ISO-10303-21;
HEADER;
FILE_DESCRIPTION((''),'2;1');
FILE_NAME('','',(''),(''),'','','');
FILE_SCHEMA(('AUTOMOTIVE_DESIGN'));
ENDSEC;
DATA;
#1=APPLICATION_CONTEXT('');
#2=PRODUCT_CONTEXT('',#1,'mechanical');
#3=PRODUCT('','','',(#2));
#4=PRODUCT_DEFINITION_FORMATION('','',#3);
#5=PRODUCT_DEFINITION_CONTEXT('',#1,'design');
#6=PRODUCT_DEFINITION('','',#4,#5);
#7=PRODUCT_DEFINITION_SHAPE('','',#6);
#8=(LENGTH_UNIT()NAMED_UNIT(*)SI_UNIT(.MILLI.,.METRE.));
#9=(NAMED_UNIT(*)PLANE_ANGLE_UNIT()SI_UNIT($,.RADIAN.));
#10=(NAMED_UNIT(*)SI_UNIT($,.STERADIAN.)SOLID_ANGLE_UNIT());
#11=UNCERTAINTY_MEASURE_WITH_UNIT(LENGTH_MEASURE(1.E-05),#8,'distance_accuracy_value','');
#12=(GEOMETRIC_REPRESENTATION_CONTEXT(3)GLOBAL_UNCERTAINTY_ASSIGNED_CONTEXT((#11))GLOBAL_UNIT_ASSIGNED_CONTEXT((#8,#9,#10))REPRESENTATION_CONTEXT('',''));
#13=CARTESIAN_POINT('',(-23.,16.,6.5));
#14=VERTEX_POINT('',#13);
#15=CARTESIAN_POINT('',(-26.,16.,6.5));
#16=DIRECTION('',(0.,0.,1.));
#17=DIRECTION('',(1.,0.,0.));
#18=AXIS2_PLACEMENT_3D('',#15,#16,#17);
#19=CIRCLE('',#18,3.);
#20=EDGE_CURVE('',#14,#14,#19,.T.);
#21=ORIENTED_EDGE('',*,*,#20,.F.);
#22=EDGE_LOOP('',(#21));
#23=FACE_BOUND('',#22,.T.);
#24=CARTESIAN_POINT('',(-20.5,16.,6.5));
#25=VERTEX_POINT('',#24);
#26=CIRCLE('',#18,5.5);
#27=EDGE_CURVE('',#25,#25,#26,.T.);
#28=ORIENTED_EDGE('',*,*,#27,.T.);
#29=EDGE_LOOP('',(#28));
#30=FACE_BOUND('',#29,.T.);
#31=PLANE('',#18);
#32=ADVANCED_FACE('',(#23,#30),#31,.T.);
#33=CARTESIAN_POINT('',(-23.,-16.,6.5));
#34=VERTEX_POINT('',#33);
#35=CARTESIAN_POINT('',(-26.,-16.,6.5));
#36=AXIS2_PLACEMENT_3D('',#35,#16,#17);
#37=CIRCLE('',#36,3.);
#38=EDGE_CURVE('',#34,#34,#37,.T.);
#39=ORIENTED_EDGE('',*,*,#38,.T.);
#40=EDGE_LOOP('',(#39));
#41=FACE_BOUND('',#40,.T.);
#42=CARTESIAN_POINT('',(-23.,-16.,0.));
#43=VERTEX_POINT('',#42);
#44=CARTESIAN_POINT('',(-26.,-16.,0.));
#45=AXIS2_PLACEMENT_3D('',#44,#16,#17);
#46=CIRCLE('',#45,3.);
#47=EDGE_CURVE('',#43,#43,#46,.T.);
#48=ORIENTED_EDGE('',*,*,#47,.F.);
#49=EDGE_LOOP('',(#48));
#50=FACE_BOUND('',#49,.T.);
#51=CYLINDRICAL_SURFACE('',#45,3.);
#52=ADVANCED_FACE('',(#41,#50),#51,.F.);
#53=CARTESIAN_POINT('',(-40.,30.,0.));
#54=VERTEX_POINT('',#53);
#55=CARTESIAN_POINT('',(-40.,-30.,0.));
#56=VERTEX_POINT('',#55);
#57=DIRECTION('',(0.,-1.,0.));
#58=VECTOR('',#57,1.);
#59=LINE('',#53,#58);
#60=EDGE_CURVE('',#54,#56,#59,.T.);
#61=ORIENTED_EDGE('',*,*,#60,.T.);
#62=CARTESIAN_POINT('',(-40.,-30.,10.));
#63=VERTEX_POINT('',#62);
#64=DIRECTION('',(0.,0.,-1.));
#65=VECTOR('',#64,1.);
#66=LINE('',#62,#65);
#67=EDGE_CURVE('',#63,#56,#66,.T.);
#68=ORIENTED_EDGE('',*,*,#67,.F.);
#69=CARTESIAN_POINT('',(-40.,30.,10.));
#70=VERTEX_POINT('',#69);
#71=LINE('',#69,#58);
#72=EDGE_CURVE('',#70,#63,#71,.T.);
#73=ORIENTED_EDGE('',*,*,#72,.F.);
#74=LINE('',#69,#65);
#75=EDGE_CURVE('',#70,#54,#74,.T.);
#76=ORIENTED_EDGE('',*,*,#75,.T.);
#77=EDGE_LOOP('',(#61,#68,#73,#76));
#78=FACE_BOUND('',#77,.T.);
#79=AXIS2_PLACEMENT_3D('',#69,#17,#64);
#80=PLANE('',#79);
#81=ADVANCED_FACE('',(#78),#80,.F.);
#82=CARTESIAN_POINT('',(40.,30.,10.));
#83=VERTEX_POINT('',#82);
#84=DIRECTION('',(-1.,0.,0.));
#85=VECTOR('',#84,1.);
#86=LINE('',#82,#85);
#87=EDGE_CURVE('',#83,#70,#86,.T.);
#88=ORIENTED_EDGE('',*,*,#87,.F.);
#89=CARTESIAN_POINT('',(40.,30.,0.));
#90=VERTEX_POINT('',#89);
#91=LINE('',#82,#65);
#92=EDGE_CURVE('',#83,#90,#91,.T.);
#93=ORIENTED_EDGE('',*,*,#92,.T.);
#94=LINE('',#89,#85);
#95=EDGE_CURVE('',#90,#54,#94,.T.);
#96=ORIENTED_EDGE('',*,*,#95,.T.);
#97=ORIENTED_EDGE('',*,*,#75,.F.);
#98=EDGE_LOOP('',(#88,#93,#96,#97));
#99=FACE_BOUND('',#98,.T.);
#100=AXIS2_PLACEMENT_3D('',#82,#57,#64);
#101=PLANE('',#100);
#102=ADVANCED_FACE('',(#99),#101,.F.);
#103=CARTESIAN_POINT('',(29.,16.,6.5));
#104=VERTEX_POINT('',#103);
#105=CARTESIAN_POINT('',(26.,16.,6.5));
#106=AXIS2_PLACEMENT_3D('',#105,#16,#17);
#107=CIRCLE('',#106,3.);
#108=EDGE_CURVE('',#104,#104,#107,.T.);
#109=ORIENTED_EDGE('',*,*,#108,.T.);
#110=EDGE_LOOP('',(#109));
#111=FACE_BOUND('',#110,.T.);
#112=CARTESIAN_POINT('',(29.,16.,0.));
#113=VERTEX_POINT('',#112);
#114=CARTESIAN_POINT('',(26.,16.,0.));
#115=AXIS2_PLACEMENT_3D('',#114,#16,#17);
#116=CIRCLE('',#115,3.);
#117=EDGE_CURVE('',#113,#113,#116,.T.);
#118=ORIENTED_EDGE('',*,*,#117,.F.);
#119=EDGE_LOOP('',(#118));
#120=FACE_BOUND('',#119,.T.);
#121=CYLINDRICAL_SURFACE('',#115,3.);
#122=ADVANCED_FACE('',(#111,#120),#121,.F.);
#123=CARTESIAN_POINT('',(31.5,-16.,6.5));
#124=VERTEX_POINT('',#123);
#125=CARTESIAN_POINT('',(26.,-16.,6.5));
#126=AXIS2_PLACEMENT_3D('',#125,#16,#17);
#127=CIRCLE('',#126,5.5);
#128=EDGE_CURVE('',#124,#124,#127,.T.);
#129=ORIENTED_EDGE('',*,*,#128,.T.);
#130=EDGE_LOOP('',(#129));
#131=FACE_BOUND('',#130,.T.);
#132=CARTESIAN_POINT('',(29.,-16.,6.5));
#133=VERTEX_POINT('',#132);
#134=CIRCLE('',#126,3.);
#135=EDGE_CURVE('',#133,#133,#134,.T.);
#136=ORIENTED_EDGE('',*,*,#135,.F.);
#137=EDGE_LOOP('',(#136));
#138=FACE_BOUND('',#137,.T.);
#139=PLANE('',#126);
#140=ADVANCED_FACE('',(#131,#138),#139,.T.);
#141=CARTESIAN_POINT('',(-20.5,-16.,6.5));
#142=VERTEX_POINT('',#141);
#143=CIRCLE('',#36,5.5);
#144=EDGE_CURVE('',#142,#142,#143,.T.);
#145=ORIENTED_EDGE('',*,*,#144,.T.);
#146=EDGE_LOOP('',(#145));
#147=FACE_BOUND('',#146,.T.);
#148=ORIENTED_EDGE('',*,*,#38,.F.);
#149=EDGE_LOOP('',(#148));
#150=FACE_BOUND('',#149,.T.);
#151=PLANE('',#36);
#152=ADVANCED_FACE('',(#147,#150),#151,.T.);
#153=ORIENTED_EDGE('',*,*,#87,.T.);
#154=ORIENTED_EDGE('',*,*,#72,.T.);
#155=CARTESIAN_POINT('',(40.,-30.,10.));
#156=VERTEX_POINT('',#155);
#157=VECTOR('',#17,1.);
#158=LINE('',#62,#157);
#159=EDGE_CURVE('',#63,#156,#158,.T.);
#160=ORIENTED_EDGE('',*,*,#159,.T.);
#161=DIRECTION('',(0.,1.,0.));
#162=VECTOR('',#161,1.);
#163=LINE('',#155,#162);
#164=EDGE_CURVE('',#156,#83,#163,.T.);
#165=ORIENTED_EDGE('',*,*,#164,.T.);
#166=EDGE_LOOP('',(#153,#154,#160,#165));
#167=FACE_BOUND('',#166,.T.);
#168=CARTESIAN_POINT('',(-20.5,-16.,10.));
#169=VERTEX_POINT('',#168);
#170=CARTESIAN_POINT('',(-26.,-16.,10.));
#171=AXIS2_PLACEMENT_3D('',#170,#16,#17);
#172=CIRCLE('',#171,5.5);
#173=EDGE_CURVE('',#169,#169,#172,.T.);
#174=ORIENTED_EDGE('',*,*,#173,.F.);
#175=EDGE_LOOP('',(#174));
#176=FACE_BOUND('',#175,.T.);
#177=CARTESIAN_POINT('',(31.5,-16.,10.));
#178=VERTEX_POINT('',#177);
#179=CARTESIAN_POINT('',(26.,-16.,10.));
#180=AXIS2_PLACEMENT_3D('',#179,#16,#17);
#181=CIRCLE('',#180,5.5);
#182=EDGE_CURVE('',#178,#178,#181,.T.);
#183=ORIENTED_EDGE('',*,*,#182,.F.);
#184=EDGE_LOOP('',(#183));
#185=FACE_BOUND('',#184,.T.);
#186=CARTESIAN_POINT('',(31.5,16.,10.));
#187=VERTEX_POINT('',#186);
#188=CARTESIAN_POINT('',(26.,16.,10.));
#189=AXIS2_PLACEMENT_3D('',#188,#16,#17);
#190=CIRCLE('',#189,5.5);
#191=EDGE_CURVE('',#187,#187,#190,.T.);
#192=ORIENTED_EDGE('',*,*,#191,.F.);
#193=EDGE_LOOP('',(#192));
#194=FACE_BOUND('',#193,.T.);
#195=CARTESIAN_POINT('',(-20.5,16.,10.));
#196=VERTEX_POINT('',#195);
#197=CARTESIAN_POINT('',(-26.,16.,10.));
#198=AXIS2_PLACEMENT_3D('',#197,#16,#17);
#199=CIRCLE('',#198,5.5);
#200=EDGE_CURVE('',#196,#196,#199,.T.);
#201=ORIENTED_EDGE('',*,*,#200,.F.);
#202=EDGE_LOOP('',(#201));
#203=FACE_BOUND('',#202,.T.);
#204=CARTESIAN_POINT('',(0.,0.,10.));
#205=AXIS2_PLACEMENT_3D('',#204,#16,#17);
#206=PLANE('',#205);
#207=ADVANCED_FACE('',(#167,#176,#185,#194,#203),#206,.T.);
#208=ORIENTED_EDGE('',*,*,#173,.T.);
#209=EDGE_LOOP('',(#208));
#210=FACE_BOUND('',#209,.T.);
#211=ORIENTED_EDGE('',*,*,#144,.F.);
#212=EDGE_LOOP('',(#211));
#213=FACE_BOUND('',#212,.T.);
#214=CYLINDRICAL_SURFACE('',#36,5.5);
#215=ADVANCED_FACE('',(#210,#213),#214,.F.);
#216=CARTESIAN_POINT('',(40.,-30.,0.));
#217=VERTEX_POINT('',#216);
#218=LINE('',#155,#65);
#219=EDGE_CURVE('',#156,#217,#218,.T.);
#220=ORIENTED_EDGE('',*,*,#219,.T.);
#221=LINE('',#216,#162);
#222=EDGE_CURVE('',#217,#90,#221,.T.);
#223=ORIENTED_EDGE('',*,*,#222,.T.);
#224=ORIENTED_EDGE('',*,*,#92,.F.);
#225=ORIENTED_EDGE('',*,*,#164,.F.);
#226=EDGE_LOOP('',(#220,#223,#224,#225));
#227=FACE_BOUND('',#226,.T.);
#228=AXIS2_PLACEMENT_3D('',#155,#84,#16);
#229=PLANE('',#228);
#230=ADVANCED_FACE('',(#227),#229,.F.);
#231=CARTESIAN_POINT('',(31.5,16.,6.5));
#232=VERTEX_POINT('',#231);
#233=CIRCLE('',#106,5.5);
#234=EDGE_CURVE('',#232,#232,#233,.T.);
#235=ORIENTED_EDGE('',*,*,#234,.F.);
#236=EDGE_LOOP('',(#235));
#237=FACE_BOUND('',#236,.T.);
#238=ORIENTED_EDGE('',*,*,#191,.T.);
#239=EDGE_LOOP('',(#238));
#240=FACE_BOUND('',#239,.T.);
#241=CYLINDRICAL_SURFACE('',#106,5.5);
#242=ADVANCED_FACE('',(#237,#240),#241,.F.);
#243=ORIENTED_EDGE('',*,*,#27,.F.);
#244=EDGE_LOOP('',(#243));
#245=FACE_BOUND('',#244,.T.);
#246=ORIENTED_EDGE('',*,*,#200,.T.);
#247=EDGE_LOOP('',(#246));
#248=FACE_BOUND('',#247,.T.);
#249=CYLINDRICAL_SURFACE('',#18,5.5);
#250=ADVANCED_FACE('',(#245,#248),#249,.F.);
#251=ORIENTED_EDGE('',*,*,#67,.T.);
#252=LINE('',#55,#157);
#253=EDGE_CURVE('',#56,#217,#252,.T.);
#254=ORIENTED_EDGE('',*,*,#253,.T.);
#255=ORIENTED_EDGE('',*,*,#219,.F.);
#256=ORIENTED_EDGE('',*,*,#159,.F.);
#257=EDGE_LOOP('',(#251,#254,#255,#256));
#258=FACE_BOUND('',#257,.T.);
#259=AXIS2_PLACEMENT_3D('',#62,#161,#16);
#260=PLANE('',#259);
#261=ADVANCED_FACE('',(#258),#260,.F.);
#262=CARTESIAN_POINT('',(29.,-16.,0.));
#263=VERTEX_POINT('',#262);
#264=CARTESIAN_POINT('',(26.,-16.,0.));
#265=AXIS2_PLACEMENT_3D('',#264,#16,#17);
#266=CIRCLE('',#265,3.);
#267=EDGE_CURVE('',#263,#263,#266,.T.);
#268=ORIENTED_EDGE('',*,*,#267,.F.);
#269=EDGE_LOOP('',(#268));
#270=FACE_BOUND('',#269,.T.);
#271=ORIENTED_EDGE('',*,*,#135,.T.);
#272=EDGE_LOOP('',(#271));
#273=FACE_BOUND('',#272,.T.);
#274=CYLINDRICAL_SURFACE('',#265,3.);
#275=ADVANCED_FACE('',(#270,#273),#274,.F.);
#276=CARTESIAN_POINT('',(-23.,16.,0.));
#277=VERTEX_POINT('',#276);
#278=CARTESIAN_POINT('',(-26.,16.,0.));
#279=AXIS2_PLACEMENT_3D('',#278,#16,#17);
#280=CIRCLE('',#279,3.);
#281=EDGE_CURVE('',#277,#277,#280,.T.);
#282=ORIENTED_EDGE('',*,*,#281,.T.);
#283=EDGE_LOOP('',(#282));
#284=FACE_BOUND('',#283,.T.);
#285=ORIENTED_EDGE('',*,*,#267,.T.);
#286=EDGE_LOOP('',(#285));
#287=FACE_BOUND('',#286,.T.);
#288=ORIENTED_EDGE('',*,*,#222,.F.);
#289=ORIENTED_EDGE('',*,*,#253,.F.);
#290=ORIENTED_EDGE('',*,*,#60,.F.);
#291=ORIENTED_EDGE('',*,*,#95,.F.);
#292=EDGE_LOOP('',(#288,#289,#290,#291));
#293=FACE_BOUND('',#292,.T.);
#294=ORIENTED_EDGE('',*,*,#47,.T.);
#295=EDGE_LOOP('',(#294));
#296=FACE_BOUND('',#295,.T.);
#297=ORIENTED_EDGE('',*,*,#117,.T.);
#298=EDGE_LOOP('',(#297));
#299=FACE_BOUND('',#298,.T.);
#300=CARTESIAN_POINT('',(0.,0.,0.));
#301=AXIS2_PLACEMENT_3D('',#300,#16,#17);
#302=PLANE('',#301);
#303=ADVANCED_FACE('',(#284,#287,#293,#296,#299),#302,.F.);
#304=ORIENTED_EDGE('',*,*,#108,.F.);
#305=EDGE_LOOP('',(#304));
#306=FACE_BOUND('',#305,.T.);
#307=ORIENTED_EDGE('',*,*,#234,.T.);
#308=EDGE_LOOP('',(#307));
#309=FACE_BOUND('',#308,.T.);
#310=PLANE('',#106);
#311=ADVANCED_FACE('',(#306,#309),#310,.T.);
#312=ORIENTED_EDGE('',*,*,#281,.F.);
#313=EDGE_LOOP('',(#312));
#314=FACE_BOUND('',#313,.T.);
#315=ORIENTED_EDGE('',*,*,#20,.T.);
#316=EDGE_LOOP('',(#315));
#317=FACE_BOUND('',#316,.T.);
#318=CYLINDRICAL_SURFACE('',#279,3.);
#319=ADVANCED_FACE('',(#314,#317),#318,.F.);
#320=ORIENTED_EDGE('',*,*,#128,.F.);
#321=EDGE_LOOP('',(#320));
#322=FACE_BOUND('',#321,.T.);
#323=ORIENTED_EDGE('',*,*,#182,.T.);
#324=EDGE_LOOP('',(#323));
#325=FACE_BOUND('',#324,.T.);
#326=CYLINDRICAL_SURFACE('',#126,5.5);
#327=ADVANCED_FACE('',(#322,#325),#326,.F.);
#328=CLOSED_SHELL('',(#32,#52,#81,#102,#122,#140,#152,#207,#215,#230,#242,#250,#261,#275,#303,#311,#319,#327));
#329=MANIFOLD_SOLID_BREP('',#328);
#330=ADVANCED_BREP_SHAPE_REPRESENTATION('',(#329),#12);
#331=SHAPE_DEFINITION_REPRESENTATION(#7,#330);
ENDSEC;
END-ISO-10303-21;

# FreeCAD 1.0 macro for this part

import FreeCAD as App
import Part
import Sketcher
Q = App.Units.Quantity

doc = App.newDocument("Part")
params = doc.addObject("Spreadsheet::Sheet", "Params")
for row, (alias, value) in enumerate([
    ("sketch1_width", "80 mm"),
    ("sketch1_height", "60 mm"),
    ("pad1_length", "10 mm"),
    ("sketch2_diameter", "11 mm"),
    ("pocket1_length", "3.5 mm"),
    ("sketch3_diameter", "6 mm"),
], start=1):
    params.set(f"A{row}", alias)
    params.set(f"B{row}", "=" + value)
    params.setAlias(f"B{row}", alias)

body = doc.addObject("PartDesign::Body", "Body")

# Sketch on XY plane
sketch1 = body.newObject("Sketcher::SketchObject", "Sketch")
sketch1.AttachmentSupport = (doc.getObject("XY_Plane"), [""])
sketch1.MapMode = "FlatFace"
sketch1.addGeometry([
    Part.LineSegment(App.Vector(-40, 30, 0), App.Vector(-40, -30, 0)),
    Part.LineSegment(App.Vector(-40, -30, 0), App.Vector(40, -30, 0)),
    Part.LineSegment(App.Vector(40, -30, 0), App.Vector(40, 30, 0)),
    Part.LineSegment(App.Vector(40, 30, 0), App.Vector(-40, 30, 0)),
], False)
sketch1.addConstraint([
    Sketcher.Constraint("Coincident", 0, 2, 1, 1),
    Sketcher.Constraint("Coincident", 1, 2, 2, 1),
    Sketcher.Constraint("Coincident", 2, 2, 3, 1),
    Sketcher.Constraint("Coincident", 3, 2, 0, 1),
    Sketcher.Constraint("Vertical", 0),
    Sketcher.Constraint("Horizontal", 1),
    Sketcher.Constraint("Vertical", 2),
    Sketcher.Constraint("Horizontal", 3),
    Sketcher.Constraint("Symmetric", 0, 2, 2, 2, -1, 1),
    Sketcher.Constraint("DistanceX", 1, 1, 1, 2, Q("80 mm")),
    Sketcher.Constraint("DistanceY", 0, 2, 0, 1, Q("60 mm")),
])
sketch1.setExpression("Constraints[9]", "Params.sketch1_width")
sketch1.setExpression("Constraints[10]", "Params.sketch1_height")
pad1 = body.newObject("PartDesign::Pad", "Pad")
pad1.Profile = sketch1
pad1.setExpression("Length", "Params.pad1_length")

# Sketch on XY plane
sketch2 = body.newObject("Sketcher::SketchObject", "Sketch001")
sketch2.AttachmentSupport = (doc.getObject("XY_Plane"), [""])
sketch2.MapMode = "FlatFace"
sketch2.AttachmentOffset = App.Placement(App.Vector(0, 0, 10), App.Rotation())
sketch2.addGeometry([
    Part.Circle(App.Vector(26, 16, 0), App.Vector(0, 0, 1), 5.5),
    Part.Circle(App.Vector(26, -16, 0), App.Vector(0, 0, 1), 5.5),
    Part.Circle(App.Vector(-26, 16, 0), App.Vector(0, 0, 1), 5.5),
    Part.Circle(App.Vector(-26, -16, 0), App.Vector(0, 0, 1), 5.5),
], False)
sketch2.addConstraint([
    Sketcher.Constraint("Equal", 0, 1),
    Sketcher.Constraint("Equal", 1, 2),
    Sketcher.Constraint("Equal", 2, 3),
    Sketcher.Constraint("Symmetric", 1, 3, 2, 3, -1, 1),
    Sketcher.Constraint("Symmetric", 0, 3, 3, 3, -1, 1),
    Sketcher.Constraint("Symmetric", 0, 3, 2, 3, -2),
    Sketcher.Constraint("Diameter", 0, Q("11 mm")),
    Sketcher.Constraint("DistanceX", -1, 1, 0, 3, Q("26 mm")),
    Sketcher.Constraint("DistanceY", -1, 1, 0, 3, Q("16 mm")),
])
sketch2.setExpression("Constraints[6]", "Params.sketch2_diameter")
pocket1 = body.newObject("PartDesign::Pocket", "Pocket")
pocket1.Profile = sketch2
pocket1.setExpression("Length", "Params.pocket1_length")

# Sketch on XY plane
sketch3 = body.newObject("Sketcher::SketchObject", "Sketch002")
sketch3.AttachmentSupport = (doc.getObject("XY_Plane"), [""])
sketch3.MapMode = "FlatFace"
sketch3.AttachmentOffset = App.Placement(App.Vector(0, 0, 10), App.Rotation())
sketch3.addGeometry([
    Part.Circle(App.Vector(26, 16, 0), App.Vector(0, 0, 1), 3),
    Part.Circle(App.Vector(26, -16, 0), App.Vector(0, 0, 1), 3),
    Part.Circle(App.Vector(-26, 16, 0), App.Vector(0, 0, 1), 3),
    Part.Circle(App.Vector(-26, -16, 0), App.Vector(0, 0, 1), 3),
], False)
sketch3.addConstraint([
    Sketcher.Constraint("Equal", 0, 1),
    Sketcher.Constraint("Equal", 1, 2),
    Sketcher.Constraint("Equal", 2, 3),
    Sketcher.Constraint("Symmetric", 1, 3, 2, 3, -1, 1),
    Sketcher.Constraint("Symmetric", 0, 3, 3, 3, -1, 1),
    Sketcher.Constraint("Symmetric", 0, 3, 2, 3, -2),
    Sketcher.Constraint("Diameter", 0, Q("6 mm")),
    Sketcher.Constraint("DistanceX", -1, 1, 0, 3, Q("26 mm")),
    Sketcher.Constraint("DistanceY", -1, 1, 0, 3, Q("16 mm")),
])
sketch3.setExpression("Constraints[6]", "Params.sketch3_diameter")
pocket2 = body.newObject("PartDesign::Pocket", "Pocket001")
pocket2.Profile = sketch3
pocket2.Type = "ThroughAll"

doc.recompute()
